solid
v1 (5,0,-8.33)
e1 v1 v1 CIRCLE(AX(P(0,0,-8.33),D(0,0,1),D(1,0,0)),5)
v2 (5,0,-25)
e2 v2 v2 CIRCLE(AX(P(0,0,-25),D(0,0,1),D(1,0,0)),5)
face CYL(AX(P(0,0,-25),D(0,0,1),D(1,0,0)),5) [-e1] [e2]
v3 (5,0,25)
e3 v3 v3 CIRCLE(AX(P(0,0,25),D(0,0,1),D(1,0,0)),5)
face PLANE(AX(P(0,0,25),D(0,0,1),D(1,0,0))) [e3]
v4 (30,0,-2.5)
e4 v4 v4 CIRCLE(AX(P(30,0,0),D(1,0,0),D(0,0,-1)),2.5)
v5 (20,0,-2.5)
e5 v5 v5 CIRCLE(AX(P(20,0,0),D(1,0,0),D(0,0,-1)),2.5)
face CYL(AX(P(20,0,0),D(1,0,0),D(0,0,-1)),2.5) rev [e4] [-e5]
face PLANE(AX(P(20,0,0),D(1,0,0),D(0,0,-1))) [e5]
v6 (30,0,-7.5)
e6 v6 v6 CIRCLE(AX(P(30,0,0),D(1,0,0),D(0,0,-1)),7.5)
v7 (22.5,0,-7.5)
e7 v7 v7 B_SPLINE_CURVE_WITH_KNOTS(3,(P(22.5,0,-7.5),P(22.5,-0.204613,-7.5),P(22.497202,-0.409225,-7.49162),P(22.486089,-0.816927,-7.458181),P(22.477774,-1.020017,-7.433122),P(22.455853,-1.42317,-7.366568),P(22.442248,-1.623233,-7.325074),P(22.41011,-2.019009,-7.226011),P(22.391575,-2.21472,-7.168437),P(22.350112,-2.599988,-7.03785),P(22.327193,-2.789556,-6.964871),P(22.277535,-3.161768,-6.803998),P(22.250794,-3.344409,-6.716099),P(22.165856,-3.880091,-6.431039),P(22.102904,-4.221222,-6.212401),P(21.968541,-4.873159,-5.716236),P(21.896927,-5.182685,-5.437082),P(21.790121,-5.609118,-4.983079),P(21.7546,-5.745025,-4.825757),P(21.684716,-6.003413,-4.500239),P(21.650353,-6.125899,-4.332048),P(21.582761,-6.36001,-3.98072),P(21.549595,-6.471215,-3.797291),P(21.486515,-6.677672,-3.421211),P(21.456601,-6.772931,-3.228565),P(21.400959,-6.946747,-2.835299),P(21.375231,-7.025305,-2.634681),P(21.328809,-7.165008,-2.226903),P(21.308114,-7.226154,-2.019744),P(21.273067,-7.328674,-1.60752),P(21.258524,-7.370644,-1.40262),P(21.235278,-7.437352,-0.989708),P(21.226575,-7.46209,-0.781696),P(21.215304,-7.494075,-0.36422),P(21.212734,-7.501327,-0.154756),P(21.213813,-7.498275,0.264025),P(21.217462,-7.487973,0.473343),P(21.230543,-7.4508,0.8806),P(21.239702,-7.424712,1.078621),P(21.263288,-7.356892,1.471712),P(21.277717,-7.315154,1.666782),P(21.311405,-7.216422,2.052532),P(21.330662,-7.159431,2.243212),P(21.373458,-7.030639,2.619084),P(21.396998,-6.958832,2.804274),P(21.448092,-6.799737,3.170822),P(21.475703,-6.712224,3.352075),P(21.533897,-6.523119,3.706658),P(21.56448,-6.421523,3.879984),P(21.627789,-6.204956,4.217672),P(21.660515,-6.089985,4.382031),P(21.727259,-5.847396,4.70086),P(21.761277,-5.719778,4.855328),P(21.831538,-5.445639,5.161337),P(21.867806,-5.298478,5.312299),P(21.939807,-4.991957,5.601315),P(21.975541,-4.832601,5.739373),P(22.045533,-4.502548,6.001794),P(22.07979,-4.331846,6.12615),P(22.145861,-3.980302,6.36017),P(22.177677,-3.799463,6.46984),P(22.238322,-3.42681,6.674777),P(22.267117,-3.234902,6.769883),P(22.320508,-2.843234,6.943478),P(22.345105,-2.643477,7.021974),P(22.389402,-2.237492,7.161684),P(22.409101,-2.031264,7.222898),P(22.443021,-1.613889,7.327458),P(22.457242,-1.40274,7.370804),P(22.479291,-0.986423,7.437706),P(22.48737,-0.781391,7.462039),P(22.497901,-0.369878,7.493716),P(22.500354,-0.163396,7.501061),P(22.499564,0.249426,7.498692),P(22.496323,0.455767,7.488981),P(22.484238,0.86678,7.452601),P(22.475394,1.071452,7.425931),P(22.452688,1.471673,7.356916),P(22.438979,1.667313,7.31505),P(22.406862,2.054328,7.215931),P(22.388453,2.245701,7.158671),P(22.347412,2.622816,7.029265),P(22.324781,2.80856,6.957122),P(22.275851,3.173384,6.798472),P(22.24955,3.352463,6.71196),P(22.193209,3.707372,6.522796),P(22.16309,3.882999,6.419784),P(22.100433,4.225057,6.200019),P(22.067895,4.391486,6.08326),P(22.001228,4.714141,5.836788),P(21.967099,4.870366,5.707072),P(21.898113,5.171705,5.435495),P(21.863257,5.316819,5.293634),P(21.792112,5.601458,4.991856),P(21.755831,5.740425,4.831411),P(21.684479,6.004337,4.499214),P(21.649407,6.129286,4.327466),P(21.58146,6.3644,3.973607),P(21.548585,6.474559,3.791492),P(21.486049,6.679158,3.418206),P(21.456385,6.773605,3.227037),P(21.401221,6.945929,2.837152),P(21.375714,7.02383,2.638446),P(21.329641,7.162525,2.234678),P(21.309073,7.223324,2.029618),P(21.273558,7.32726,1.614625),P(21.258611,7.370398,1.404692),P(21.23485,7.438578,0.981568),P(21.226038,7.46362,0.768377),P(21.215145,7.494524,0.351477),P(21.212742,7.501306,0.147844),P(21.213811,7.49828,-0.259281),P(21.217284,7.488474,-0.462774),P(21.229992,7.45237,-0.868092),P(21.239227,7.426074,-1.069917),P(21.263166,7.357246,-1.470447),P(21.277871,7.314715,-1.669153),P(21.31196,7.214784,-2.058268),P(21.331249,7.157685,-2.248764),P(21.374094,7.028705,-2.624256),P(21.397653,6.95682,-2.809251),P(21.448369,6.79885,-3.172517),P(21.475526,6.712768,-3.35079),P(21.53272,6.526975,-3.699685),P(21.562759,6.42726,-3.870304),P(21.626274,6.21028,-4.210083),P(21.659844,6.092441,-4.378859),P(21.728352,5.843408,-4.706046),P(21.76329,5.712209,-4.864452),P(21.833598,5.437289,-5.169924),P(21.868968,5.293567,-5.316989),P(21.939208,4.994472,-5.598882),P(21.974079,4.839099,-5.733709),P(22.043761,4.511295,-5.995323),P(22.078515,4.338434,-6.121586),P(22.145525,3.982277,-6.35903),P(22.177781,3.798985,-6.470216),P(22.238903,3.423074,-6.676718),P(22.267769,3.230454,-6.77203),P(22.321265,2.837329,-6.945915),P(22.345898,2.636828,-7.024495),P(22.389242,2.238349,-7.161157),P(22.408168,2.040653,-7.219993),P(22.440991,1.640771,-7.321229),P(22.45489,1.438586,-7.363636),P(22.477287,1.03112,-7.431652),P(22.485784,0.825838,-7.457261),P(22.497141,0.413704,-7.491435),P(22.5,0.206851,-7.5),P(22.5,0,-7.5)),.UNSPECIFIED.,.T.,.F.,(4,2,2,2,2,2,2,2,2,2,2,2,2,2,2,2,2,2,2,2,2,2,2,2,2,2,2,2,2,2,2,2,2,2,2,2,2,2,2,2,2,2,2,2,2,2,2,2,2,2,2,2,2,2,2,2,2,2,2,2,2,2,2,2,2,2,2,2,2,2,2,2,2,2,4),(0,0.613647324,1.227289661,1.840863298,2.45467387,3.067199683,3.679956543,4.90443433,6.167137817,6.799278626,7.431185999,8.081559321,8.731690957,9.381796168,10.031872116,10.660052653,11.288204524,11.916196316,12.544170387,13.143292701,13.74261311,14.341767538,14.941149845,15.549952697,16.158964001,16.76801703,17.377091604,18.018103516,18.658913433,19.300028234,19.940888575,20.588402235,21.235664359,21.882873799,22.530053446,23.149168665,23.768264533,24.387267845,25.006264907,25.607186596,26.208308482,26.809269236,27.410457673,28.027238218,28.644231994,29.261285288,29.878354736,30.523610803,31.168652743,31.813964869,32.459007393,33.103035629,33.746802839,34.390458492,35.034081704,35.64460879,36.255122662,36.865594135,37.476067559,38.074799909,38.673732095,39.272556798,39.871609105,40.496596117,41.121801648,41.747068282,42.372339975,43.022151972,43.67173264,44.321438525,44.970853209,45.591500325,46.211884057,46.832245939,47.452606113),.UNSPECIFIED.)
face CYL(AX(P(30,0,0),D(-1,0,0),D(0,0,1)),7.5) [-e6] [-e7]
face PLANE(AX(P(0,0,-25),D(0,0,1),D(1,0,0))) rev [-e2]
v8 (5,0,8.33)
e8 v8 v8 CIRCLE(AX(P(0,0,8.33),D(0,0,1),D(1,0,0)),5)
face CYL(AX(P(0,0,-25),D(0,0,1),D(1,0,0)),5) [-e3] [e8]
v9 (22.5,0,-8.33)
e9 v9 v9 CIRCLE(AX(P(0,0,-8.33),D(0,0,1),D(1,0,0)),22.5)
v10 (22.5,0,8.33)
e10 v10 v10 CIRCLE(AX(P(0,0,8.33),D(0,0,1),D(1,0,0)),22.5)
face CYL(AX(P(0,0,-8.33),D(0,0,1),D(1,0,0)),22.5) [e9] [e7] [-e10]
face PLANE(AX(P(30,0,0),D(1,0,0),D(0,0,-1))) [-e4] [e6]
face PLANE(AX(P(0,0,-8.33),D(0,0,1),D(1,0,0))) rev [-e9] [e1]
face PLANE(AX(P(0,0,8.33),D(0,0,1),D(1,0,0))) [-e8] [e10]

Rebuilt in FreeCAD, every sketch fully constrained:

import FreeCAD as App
import Part
import Sketcher

V = App.Vector
Q = App.Units.Quantity

doc = App.newDocument("Part")
body = doc.addObject("PartDesign::Body", "Body")

# Sketch on XY plane
sketch1 = body.newObject("Sketcher::SketchObject", "Sketch")
sketch1.AttachmentSupport = (doc.getObject("XY_Plane"), [""])
sketch1.MapMode = "FlatFace"
sketch1.addGeometry(Part.Circle(V(0, 0, 0), V(0, 0, 1), 22), False)
sketch1.addConstraint(Sketcher.Constraint("Coincident", 0, 3, -1, 1))
sketch1.addConstraint(Sketcher.Constraint("Diameter", 0, Q("45 mm")))
pad1 = body.newObject("PartDesign::Pad", "Pad")
pad1.Profile = sketch1
pad1.Type = "TwoLengths"
pad1.Length = 8.33
pad1.Length2 = 8.33

# Sketch on YZ plane
sketch2 = body.newObject("Sketcher::SketchObject", "Sketch001")
sketch2.AttachmentSupport = (doc.getObject("YZ_Plane"), [""])
sketch2.MapMode = "FlatFace"
sketch2.AttachmentOffset = App.Placement(V(0, 0, 10), App.Rotation())
sketch2.addGeometry(Part.Circle(V(0, 0, 0), V(0, 0, 1), 8), False)
sketch2.addConstraint(Sketcher.Constraint("Coincident", 0, 3, -1, 1))
sketch2.addConstraint(Sketcher.Constraint("Diameter", 0, Q("15 mm")))
pad2 = body.newObject("PartDesign::Pad", "Pad001")
pad2.Profile = sketch2
pad2.Length = 20

# Sketch on YZ plane
sketch3 = body.newObject("Sketcher::SketchObject", "Sketch002")
sketch3.AttachmentSupport = (doc.getObject("YZ_Plane"), [""])
sketch3.MapMode = "FlatFace"
sketch3.AttachmentOffset = App.Placement(V(0, 0, 30), App.Rotation())
sketch3.addGeometry(Part.Circle(V(0, 0, 0), V(0, 0, 1), 2.5), False)
sketch3.addConstraint(Sketcher.Constraint("Coincident", 0, 3, -1, 1))
sketch3.addConstraint(Sketcher.Constraint("Diameter", 0, Q("5 mm")))
pocket1 = body.newObject("PartDesign::Pocket", "Pocket")
pocket1.Profile = sketch3
pocket1.Length = 10

# Sketch on XY plane
sketch4 = body.newObject("Sketcher::SketchObject", "Sketch003")
sketch4.AttachmentSupport = (doc.getObject("XY_Plane"), [""])
sketch4.MapMode = "FlatFace"
sketch4.addGeometry(Part.Circle(V(0, 0, 0), V(0, 0, 1), 5), False)
sketch4.addConstraint(Sketcher.Constraint("Coincident", 0, 3, -1, 1))
sketch4.addConstraint(Sketcher.Constraint("Diameter", 0, Q("10 mm")))
pad3 = body.newObject("PartDesign::Pad", "Pad002")
pad3.Profile = sketch4
pad3.Type = "TwoLengths"
pad3.Length = 25
pad3.Length2 = 25

doc.recompute()
